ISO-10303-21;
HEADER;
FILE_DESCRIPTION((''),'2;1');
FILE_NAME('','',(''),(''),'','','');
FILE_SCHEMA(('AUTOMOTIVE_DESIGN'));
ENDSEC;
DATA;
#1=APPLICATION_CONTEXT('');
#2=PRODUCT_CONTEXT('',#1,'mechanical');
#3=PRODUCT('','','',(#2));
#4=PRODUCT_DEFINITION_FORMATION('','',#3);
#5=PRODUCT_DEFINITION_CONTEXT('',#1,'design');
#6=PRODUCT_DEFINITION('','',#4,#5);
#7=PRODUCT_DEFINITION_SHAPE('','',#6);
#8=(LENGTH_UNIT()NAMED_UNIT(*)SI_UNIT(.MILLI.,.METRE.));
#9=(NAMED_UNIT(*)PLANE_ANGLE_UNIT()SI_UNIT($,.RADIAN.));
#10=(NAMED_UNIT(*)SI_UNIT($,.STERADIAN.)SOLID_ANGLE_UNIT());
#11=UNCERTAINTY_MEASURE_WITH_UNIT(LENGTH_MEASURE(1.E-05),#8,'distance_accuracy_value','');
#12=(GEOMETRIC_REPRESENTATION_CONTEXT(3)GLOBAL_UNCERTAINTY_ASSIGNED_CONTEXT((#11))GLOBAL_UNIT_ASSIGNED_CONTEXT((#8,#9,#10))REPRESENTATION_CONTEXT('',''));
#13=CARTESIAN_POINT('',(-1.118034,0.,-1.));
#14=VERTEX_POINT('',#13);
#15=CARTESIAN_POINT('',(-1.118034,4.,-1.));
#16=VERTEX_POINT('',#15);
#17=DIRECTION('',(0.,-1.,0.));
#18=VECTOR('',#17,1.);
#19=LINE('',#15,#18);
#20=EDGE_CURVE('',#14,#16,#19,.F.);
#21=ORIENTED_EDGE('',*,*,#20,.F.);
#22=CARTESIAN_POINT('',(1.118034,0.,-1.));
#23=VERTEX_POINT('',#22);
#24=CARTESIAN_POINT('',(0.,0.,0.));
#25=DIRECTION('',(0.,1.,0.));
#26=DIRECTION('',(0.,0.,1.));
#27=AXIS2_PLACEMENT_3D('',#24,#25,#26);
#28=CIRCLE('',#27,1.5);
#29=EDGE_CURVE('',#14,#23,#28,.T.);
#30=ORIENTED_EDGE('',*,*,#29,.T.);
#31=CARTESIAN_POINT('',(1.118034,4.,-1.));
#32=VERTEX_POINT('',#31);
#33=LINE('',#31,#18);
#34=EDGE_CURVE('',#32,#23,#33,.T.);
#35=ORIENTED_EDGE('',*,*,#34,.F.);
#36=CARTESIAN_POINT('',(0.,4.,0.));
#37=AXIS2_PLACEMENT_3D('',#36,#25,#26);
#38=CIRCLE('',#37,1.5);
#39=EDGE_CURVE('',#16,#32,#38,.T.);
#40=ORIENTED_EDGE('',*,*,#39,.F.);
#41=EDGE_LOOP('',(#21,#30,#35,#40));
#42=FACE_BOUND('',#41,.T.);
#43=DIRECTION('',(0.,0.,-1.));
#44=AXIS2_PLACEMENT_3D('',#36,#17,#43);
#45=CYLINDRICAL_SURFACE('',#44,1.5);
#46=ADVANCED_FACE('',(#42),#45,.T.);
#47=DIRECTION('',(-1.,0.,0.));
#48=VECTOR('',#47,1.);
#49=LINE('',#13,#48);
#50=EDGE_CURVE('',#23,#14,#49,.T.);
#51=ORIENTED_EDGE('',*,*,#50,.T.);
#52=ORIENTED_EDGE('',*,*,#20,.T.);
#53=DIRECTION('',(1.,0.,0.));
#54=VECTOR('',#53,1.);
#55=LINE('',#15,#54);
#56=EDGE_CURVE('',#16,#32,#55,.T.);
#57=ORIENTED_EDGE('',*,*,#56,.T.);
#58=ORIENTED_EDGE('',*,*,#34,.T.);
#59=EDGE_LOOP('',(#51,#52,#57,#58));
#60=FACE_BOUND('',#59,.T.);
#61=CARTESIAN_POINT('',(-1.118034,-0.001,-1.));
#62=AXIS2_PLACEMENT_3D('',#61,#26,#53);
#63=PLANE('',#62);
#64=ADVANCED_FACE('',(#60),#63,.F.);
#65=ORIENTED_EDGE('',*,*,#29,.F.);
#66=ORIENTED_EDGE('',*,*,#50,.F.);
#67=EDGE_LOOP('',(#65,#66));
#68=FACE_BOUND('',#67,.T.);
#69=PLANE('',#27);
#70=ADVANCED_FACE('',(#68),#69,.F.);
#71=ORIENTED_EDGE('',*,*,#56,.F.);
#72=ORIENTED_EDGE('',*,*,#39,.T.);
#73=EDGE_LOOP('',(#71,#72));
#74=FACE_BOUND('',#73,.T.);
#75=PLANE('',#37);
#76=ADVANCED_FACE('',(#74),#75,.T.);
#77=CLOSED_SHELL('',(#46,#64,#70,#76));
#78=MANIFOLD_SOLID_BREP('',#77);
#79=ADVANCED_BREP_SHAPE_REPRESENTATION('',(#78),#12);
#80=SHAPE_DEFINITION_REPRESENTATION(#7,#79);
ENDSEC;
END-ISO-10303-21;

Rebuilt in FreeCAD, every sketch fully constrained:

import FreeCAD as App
import Part
import Sketcher
Q = App.Units.Quantity


def add_polygon(sketch, points):
    """Adds a closed chain of lines whose ends are joined by coincident constraints."""
    first, n = sketch.GeometryCount, len(points)
    for a, b in zip(points, points[1:] + points[:1]):
        sketch.addGeometry(Part.LineSegment(App.Vector(*a, 0), App.Vector(*b, 0)), False)
    for i in range(n):
        sketch.addConstraint(Sketcher.Constraint("Coincident", first + i, 2, first + (i + 1) % n, 1))

doc = App.newDocument("Part")
body = doc.addObject("PartDesign::Body", "Body")

# Sketch on XZ plane
sketch1 = body.newObject("Sketcher::SketchObject", "Sketch")
sketch1.AttachmentSupport = (doc.getObject("XZ_Plane"), [""])
sketch1.MapMode = "FlatFace"
sketch1.addGeometry(Part.Circle(App.Vector(0, 0, 0), App.Vector(0, 0, 1), 1.5), False)
sketch1.addConstraint([
    Sketcher.Constraint("Coincident", 0, 3, -1, 1),
    Sketcher.Constraint("Diameter", 0, Q("3 mm")),
])
pad1 = body.newObject("PartDesign::Pad", "Pad")
pad1.Profile = sketch1
pad1.Length = 4
pad1.Reversed = True

# Sketch on XZ plane
sketch2 = body.newObject("Sketcher::SketchObject", "Sketch001")
sketch2.AttachmentSupport = (doc.getObject("XZ_Plane"), [""])
sketch2.MapMode = "FlatFace"
sketch2.AttachmentOffset = App.Placement(App.Vector(0, 0, -4), App.Rotation())
add_polygon(sketch2, [(-1.1, -1.5), (-1.1, -1), (1.1, -1), (1.1, -1.5)])  # lines 0-3
sketch2.addConstraint([
    Sketcher.Constraint("Vertical", 0),
    Sketcher.Constraint("Horizontal", 1),
    Sketcher.Constraint("Vertical", 2),
    Sketcher.Constraint("Horizontal", 3),
    Sketcher.Constraint("DistanceY", 0, 1, 0, 2, Q("0.5 mm")),
    Sketcher.Constraint("DistanceY", 0, 2, -1, 1, Q("1 mm")),
    Sketcher.Constraint("DistanceX", 1, 1, 1, 2, Q("2.236068 mm")),
    Sketcher.Constraint("DistanceX", 0, 2, -1, 1, Q("1.118034 mm")),
])
pocket1 = body.newObject("PartDesign::Pocket", "Pocket")
pocket1.Profile = sketch2
pocket1.Type = "UpToFirst"
pocket1.Reversed = True

doc.recompute()
